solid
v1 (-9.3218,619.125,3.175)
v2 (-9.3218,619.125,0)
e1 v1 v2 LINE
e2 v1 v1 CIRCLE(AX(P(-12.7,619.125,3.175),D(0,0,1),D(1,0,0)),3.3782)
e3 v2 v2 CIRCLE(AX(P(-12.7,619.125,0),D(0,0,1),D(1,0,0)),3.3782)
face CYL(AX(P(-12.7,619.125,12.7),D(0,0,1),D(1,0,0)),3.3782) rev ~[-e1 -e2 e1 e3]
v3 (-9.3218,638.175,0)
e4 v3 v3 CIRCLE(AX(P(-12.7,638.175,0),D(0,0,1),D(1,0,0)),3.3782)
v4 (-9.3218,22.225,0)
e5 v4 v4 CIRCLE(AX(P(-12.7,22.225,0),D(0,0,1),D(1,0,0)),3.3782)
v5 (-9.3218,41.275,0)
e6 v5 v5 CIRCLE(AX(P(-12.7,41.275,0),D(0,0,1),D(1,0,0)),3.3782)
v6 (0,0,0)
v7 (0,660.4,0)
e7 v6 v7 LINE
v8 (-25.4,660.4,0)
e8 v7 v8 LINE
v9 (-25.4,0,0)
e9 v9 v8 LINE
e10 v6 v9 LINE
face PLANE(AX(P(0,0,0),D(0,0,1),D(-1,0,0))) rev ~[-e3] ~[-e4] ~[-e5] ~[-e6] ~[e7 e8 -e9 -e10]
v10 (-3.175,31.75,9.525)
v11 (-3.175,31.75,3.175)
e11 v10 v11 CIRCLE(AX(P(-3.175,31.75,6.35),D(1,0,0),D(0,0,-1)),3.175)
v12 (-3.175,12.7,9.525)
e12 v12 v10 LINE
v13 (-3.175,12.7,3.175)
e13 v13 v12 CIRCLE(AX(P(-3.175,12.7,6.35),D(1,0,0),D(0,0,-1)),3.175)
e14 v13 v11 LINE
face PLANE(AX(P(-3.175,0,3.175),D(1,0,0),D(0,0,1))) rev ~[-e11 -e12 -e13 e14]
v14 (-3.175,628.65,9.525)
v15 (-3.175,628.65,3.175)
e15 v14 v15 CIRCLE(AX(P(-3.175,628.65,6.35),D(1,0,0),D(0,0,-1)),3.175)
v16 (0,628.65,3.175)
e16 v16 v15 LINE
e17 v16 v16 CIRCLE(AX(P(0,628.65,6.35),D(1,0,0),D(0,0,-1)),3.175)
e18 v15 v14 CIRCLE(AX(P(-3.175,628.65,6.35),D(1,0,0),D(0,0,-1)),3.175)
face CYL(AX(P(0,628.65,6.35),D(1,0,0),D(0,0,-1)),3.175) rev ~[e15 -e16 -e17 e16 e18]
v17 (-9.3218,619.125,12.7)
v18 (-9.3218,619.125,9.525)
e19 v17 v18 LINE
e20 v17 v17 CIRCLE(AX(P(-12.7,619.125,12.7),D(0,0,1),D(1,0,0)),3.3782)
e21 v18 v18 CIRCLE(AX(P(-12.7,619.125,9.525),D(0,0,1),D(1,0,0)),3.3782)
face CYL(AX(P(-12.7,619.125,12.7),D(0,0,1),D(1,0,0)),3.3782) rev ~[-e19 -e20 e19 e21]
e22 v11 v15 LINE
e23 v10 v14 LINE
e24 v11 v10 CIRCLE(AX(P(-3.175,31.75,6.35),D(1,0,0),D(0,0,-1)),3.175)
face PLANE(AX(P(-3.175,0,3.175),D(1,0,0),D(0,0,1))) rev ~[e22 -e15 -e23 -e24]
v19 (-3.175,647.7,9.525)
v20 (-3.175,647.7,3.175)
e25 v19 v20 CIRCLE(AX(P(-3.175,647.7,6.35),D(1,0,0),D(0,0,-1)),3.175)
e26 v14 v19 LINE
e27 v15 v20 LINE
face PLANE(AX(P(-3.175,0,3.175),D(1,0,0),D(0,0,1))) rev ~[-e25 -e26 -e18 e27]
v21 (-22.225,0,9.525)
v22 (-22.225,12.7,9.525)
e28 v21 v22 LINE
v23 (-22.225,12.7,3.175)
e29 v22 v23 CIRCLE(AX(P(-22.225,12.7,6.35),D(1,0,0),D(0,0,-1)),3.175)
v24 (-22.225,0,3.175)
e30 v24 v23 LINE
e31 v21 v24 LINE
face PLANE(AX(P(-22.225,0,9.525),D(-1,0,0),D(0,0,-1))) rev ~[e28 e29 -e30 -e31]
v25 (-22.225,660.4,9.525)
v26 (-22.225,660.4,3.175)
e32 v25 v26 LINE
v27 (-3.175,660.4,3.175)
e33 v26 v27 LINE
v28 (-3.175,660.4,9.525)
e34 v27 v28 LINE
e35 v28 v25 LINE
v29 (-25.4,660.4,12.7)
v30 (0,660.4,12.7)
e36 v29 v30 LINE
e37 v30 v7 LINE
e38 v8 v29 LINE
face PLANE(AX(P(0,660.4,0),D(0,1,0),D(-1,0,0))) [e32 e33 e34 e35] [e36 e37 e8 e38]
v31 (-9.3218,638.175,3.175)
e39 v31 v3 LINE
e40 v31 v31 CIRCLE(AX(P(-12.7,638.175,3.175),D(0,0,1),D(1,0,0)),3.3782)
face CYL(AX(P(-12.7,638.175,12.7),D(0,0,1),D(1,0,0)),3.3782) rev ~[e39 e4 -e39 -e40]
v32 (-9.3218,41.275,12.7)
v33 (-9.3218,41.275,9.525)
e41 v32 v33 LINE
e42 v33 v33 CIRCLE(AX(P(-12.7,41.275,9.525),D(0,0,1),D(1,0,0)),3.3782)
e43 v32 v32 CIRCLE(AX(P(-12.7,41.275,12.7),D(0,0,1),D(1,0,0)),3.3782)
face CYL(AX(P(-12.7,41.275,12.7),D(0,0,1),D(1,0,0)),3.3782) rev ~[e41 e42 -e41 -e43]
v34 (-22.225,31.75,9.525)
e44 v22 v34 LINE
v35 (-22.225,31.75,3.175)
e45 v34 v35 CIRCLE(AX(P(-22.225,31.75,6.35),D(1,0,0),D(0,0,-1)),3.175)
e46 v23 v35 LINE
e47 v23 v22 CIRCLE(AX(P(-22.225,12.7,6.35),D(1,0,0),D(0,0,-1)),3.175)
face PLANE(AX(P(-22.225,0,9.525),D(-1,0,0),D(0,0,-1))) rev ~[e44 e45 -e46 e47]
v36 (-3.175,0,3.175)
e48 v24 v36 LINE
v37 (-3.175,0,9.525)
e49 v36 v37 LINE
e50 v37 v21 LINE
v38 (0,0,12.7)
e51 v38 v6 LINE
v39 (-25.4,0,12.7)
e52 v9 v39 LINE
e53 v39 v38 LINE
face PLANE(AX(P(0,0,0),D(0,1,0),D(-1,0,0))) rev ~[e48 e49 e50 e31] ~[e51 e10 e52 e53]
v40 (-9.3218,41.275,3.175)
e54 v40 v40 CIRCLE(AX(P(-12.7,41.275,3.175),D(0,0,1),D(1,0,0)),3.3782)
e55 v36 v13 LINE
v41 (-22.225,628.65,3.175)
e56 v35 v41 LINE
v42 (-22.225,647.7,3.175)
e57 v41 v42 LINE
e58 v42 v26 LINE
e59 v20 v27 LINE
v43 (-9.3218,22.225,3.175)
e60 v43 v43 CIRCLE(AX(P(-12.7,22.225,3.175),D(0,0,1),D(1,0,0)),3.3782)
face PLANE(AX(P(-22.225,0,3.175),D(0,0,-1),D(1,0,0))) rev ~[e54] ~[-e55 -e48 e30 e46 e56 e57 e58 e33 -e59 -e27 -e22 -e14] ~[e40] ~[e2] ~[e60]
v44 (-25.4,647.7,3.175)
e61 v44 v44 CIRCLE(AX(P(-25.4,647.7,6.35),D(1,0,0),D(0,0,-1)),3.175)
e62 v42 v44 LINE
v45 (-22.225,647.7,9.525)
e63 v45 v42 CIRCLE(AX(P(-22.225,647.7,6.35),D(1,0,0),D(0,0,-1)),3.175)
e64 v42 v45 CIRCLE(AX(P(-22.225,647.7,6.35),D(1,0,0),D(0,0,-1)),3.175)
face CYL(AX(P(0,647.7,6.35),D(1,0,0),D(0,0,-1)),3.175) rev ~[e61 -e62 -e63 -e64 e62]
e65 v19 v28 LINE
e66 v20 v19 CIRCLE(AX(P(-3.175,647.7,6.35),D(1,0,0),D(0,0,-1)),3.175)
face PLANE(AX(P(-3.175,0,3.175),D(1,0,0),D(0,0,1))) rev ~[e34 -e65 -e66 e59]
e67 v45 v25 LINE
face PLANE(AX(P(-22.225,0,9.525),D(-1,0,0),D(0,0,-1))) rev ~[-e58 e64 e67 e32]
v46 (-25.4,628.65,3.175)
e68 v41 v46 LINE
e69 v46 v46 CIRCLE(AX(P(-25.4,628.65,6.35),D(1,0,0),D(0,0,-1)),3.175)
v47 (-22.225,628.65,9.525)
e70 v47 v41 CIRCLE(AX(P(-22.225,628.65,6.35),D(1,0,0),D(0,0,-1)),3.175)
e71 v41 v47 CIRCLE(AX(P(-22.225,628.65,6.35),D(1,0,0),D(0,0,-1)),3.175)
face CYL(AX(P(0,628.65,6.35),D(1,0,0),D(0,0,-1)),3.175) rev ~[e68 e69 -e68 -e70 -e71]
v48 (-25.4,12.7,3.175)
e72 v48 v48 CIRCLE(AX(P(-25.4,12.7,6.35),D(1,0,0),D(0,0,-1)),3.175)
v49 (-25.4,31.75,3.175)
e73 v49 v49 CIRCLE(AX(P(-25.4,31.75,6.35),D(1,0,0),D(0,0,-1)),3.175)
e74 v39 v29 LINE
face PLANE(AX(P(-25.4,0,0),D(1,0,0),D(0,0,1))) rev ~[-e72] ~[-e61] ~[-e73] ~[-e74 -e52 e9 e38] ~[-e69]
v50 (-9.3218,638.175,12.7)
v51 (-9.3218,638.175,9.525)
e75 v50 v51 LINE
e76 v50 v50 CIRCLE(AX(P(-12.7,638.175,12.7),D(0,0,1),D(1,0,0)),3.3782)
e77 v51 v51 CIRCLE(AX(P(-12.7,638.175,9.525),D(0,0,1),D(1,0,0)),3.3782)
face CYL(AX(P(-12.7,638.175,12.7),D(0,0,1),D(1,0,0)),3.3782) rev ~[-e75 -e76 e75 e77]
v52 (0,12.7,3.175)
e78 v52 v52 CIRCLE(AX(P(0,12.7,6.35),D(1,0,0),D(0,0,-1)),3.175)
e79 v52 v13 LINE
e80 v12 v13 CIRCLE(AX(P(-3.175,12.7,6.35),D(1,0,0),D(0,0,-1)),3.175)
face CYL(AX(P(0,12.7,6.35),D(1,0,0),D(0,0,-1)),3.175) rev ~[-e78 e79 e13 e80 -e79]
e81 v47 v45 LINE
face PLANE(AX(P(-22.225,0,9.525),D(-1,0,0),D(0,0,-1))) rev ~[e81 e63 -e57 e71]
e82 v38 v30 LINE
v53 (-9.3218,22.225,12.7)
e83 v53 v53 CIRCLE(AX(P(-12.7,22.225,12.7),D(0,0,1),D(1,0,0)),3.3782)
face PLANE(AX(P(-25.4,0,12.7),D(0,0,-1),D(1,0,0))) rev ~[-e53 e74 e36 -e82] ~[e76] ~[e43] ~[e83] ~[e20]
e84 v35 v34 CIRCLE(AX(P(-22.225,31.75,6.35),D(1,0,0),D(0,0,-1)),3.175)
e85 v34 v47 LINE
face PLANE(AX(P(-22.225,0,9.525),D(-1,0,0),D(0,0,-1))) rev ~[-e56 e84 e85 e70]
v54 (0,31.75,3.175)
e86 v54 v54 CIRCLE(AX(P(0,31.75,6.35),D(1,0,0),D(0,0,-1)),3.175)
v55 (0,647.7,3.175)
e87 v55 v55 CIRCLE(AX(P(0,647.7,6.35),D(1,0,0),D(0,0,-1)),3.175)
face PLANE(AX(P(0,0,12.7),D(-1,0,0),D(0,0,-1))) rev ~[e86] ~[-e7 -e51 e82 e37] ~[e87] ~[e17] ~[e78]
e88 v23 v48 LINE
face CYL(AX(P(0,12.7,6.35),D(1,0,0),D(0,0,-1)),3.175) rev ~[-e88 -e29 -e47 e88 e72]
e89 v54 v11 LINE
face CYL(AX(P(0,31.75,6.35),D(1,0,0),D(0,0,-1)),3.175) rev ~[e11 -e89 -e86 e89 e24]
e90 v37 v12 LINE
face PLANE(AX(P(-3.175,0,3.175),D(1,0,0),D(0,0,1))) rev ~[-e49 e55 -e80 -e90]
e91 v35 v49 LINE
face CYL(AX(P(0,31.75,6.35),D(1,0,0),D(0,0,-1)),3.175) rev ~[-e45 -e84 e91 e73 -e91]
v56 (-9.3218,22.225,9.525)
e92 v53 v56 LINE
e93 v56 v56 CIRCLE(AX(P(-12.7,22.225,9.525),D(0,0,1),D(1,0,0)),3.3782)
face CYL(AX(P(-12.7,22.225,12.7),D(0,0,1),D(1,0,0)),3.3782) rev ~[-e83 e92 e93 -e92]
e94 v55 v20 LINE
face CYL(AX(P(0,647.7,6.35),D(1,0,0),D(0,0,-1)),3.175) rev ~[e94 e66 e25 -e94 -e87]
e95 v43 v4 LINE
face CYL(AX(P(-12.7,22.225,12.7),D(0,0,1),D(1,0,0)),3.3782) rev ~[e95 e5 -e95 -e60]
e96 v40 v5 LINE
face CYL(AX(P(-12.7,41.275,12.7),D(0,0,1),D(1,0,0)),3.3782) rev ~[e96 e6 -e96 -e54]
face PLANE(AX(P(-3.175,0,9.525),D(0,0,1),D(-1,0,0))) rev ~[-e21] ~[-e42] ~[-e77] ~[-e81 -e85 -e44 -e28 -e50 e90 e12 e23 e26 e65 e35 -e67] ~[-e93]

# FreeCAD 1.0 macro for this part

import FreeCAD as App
import Part
import Sketcher

V = App.Vector
Q = App.Units.Quantity

doc = App.newDocument("Part")
params = doc.addObject("Spreadsheet::Sheet", "Params")
for row, (alias, value) in enumerate([
    ("sketch1_width", "1 in"),
    ("sketch1_height", "0.5 in"),
    ("pad1_length", "26 in"),
    ("sketch2_diameter", "0.266 in"),
    ("pocket1_length", "1 in"),
    ("sketch3_diameter", "0.25 in"),
    ("pocket2_length", "1 in"),
], start=1):
    params.set(f"A{row}", alias)
    params.set(f"B{row}", "=" + value)
    params.setAlias(f"B{row}", alias)

body = doc.addObject("PartDesign::Body", "Body")

sketch1 = body.newObject("Sketcher::SketchObject", "Sketch")
sketch1.AttachmentSupport = (doc.getObject("XZ_Plane"), [""])
sketch1.MapMode = "FlatFace"
sketch1.addGeometry([
    Part.LineSegment(V(0, 13, 0), V(0, 0, 0)),
    Part.LineSegment(V(0, 0, 0), V(-25, 0, 0)),
    Part.LineSegment(V(-25, 0, 0), V(-25, 13, 0)),
    Part.LineSegment(V(-25, 13, 0), V(0, 13, 0)),
    Part.LineSegment(V(-3, 3, 0), V(-3, 10, 0)),
    Part.LineSegment(V(-3, 10, 0), V(-22, 10, 0)),
    Part.LineSegment(V(-22, 10, 0), V(-22, 3, 0)),
    Part.LineSegment(V(-22, 3, 0), V(-3, 3, 0)),
], False)
sketch1.addConstraint([
    Sketcher.Constraint("Coincident", 0, 2, 1, 1),
    Sketcher.Constraint("Coincident", 1, 2, 2, 1),
    Sketcher.Constraint("Coincident", 2, 2, 3, 1),
    Sketcher.Constraint("Coincident", 3, 2, 0, 1),
    Sketcher.Constraint("Coincident", 4, 2, 5, 1),
    Sketcher.Constraint("Coincident", 5, 2, 6, 1),
    Sketcher.Constraint("Coincident", 6, 2, 7, 1),
    Sketcher.Constraint("Coincident", 7, 2, 4, 1),
    Sketcher.Constraint("Vertical", 0),
    Sketcher.Constraint("Horizontal", 1),
    Sketcher.Constraint("Vertical", 2),
    Sketcher.Constraint("Horizontal", 3),
    Sketcher.Constraint("Vertical", 4),
    Sketcher.Constraint("Horizontal", 5),
    Sketcher.Constraint("Vertical", 6),
    Sketcher.Constraint("Horizontal", 7),
    Sketcher.Constraint("Coincident", 0, 2, -1, 1),
    Sketcher.Constraint("DistanceX", 1, 2, 1, 1, Q("1 in")),
    Sketcher.Constraint("DistanceY", 0, 2, 0, 1, Q("0.5 in")),
    Sketcher.Constraint("DistanceX", 4, 2, -1, 1, Q("0.125 in")),
    Sketcher.Constraint("DistanceY", -1, 1, 6, 2, Q("0.125 in")),
    Sketcher.Constraint("DistanceY", 4, 2, 3, 2, Q("0.125 in")),
    Sketcher.Constraint("DistanceX", 2, 2, 5, 2, Q("0.125 in")),
])
sketch1.setExpression("Constraints[17]", "Params.sketch1_width")
sketch1.setExpression("Constraints[18]", "Params.sketch1_height")
pad1 = body.newObject("PartDesign::Pad", "Pad")
pad1.Profile = sketch1
pad1.setExpression("Length", "Params.pad1_length")
pad1.Reversed = True

sketch2 = body.newObject("Sketcher::SketchObject", "Sketch001")
sketch2.AttachmentSupport = (doc.getObject("XY_Plane"), [""])
sketch2.MapMode = "FlatFace"
sketch2.AttachmentOffset = App.Placement(V(0, 0, 0.5 * 25.4), App.Rotation())
sketch2.addGeometry([
    Part.Circle(V(-12.7, 41.3, 0), V(0, 0, 1), 3.4),
    Part.Circle(V(-12.7, 22.2, 0), V(0, 0, 1), 3.4),
    Part.Circle(V(-12.7, 619.1, 0), V(0, 0, 1), 3.4),
    Part.Circle(V(-12.7, 638.2, 0), V(0, 0, 1), 3.4),
], False)
sketch2.addConstraint([
    Sketcher.Constraint("Equal", 0, 1),
    Sketcher.Constraint("Equal", 1, 2),
    Sketcher.Constraint("Equal", 2, 3),
    Sketcher.Constraint("Vertical", 0, 3, 1, 3),
    Sketcher.Constraint("Vertical", 1, 3, 2, 3),
    Sketcher.Constraint("Vertical", 2, 3, 3, 3),
    Sketcher.Constraint("Diameter", 0, Q("0.266 in")),
    Sketcher.Constraint("DistanceX", 0, 3, -1, 1, Q("0.5 in")),
    Sketcher.Constraint("DistanceY", 1, 3, 2, 3, Q("23.5 in")),
    Sketcher.Constraint("DistanceY", 0, 3, 3, 3, Q("23.5 in")),
    Sketcher.Constraint("DistanceY", 1, 3, 0, 3, Q("0.75 in")),
    Sketcher.Constraint("DistanceY", -1, 1, 0, 3, Q("1.625 in")),
])
sketch2.setExpression("Constraints[6]", "Params.sketch2_diameter")
pocket1 = body.newObject("PartDesign::Pocket", "Pocket")
pocket1.Profile = sketch2
pocket1.setExpression("Length", "Params.pocket1_length")

sketch3 = body.newObject("Sketcher::SketchObject", "Sketch002")
sketch3.AttachmentSupport = (doc.getObject("YZ_Plane"), [""])
sketch3.MapMode = "FlatFace"
sketch3.addGeometry([
    Part.Circle(V(647.7, 6.3, 0), V(0, 0, 1), 3.2),
    Part.Circle(V(628.6, 6.3, 0), V(0, 0, 1), 3.2),
    Part.Circle(V(12.7, 6.3, 0), V(0, 0, 1), 3.2),
    Part.Circle(V(31.8, 6.3, 0), V(0, 0, 1), 3.2),
], False)
sketch3.addConstraint([
    Sketcher.Constraint("Equal", 0, 1),
    Sketcher.Constraint("Equal", 1, 2),
    Sketcher.Constraint("Equal", 2, 3),
    Sketcher.Constraint("Horizontal", 0, 3, 1, 3),
    Sketcher.Constraint("Horizontal", 1, 3, 2, 3),
    Sketcher.Constraint("Horizontal", 2, 3, 3, 3),
    Sketcher.Constraint("Diameter", 0, Q("0.25 in")),
    Sketcher.Constraint("DistanceX", -1, 1, 2, 3, Q("0.5 in")),
    Sketcher.Constraint("DistanceY", -1, 1, 0, 3, Q("0.25 in")),
    Sketcher.Constraint("DistanceX", 1, 3, 0, 3, Q("0.75 in")),
    Sketcher.Constraint("DistanceX", 2, 3, 3, 3, Q("0.75 in")),
    Sketcher.Constraint("DistanceX", 2, 3, 0, 3, Q("25 in")),
])
sketch3.setExpression("Constraints[6]", "Params.sketch3_diameter")
pocket2 = body.newObject("PartDesign::Pocket", "Pocket001")
pocket2.Profile = sketch3
pocket2.setExpression("Length", "Params.pocket2_length")

doc.recompute()
